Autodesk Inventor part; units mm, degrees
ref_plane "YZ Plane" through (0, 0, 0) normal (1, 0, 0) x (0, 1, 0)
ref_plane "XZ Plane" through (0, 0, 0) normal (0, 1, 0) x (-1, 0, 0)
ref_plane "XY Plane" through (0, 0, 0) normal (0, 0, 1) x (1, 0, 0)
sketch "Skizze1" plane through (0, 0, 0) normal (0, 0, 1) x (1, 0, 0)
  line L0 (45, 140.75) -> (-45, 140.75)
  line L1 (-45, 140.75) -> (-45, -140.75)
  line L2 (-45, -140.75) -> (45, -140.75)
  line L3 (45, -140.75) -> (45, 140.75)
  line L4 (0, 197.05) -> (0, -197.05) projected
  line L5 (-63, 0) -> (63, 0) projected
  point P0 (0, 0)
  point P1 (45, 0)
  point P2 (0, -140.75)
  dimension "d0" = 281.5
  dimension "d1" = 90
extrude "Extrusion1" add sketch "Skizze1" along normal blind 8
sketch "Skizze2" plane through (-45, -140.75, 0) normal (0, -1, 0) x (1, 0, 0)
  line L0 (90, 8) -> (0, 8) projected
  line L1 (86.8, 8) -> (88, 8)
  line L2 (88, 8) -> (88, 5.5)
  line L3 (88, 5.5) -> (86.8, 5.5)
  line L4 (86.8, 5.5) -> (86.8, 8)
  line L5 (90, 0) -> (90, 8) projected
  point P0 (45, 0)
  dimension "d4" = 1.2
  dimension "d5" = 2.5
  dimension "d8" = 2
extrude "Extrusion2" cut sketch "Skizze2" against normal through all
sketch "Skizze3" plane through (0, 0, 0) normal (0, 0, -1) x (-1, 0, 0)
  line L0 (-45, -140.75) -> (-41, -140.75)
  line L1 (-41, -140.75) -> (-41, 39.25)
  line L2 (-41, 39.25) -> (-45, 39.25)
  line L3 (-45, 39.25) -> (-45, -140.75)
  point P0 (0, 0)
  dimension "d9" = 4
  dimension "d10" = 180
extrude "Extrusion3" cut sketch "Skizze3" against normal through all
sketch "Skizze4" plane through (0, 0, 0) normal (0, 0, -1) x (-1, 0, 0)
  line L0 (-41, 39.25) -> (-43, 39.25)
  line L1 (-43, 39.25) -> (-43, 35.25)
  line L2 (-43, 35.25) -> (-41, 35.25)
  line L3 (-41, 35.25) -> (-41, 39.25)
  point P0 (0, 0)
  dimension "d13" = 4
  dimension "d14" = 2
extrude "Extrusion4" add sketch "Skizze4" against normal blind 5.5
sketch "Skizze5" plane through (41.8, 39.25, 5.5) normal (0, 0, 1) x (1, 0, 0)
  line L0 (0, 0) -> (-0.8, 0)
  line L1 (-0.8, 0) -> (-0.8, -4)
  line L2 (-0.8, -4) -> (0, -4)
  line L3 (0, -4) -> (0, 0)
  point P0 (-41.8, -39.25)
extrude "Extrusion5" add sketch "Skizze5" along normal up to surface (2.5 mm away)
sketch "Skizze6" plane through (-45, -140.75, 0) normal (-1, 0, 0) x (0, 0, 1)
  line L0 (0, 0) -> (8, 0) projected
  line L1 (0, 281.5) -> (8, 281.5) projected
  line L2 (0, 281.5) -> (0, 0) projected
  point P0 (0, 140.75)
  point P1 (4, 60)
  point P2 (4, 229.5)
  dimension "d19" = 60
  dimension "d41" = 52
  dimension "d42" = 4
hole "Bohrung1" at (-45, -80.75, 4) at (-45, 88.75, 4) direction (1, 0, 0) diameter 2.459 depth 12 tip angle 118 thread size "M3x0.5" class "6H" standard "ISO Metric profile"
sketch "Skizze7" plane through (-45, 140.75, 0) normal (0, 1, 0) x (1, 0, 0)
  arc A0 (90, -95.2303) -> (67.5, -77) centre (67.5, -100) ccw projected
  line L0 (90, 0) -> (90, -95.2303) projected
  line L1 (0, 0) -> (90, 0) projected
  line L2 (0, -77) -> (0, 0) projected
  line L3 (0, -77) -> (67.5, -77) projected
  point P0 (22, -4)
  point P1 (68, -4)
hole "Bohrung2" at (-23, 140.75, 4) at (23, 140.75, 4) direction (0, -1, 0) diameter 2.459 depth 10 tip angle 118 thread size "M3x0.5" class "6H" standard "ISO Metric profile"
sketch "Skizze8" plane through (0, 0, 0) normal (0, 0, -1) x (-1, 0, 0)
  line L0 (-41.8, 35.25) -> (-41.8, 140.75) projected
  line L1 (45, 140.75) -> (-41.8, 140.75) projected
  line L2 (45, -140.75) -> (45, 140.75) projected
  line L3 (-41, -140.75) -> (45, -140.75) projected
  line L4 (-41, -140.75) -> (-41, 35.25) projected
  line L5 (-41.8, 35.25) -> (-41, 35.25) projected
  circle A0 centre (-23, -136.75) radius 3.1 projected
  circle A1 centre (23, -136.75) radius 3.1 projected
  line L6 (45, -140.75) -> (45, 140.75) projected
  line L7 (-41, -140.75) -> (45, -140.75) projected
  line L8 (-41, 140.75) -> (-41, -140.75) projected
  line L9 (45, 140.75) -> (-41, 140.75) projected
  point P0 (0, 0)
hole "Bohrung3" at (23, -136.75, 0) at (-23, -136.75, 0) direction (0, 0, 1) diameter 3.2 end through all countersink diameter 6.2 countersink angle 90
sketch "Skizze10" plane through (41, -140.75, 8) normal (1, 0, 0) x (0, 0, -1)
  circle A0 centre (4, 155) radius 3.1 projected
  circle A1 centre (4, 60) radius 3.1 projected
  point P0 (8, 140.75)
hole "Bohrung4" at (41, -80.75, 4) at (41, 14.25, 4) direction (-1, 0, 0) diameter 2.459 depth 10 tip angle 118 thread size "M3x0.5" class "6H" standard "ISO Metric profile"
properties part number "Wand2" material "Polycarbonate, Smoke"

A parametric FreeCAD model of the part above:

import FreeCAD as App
import Part
import Sketcher
Q = App.Units.Quantity

doc = App.newDocument("Part")
body = doc.addObject("PartDesign::Body", "Body")

sketch1 = doc.addObject("Sketcher::SketchObject", "Sketch")
body.addObject(sketch1)
sketch1.AttachmentSupport = (doc.XY_Plane, [""])
sketch1.MapMode = "FlatFace"
sketch1.addGeometry(Part.LineSegment(App.Vector(45, 141, 0), App.Vector(-45, 141, 0)), False)
sketch1.addGeometry(Part.LineSegment(App.Vector(-45, 141, 0), App.Vector(-45, -141, 0)), False)
sketch1.addGeometry(Part.LineSegment(App.Vector(-45, -141, 0), App.Vector(45, -141, 0)), False)
sketch1.addGeometry(Part.LineSegment(App.Vector(45, -141, 0), App.Vector(45, 141, 0)), False)
sketch1.addConstraint(Sketcher.Constraint("Coincident", 0, 2, 1, 1))
sketch1.addConstraint(Sketcher.Constraint("Coincident", 1, 2, 2, 1))
sketch1.addConstraint(Sketcher.Constraint("Coincident", 2, 2, 3, 1))
sketch1.addConstraint(Sketcher.Constraint("Coincident", 3, 2, 0, 1))
sketch1.addConstraint(Sketcher.Constraint("Horizontal", 0))
sketch1.addConstraint(Sketcher.Constraint("Vertical", 1))
sketch1.addConstraint(Sketcher.Constraint("Horizontal", 2))
sketch1.addConstraint(Sketcher.Constraint("Vertical", 3))
sketch1.addConstraint(Sketcher.Constraint("Symmetric", 0, 2, 2, 2, -1, 1))
sketch1.addConstraint(Sketcher.Constraint("DistanceX", 0, 2, 0, 1, Q("90 mm")))
sketch1.addConstraint(Sketcher.Constraint("DistanceY", 1, 2, 1, 1, Q("281.5 mm")))
pad1 = doc.addObject("PartDesign::Pad", "Pad")
body.addObject(pad1)
pad1.Profile = sketch1
pad1.Length = 8

sketch2 = doc.addObject("Sketcher::SketchObject", "Sketch001")
body.addObject(sketch2)
sketch2.AttachmentSupport = (doc.XZ_Plane, [""])
sketch2.MapMode = "FlatFace"
sketch2.AttachmentOffset = App.Placement(App.Vector(0, 0, 140.75), App.Rotation())
sketch2.addGeometry(Part.LineSegment(App.Vector(43, 5.5, 0), App.Vector(43, 8, 0)), False)
sketch2.addGeometry(Part.LineSegment(App.Vector(43, 8, 0), App.Vector(41.8, 8, 0)), False)
sketch2.addGeometry(Part.LineSegment(App.Vector(41.8, 8, 0), App.Vector(41.8, 5.5, 0)), False)
sketch2.addGeometry(Part.LineSegment(App.Vector(41.8, 5.5, 0), App.Vector(43, 5.5, 0)), False)
sketch2.addConstraint(Sketcher.Constraint("Coincident", 0, 2, 1, 1))
sketch2.addConstraint(Sketcher.Constraint("Coincident", 1, 2, 2, 1))
sketch2.addConstraint(Sketcher.Constraint("Coincident", 2, 2, 3, 1))
sketch2.addConstraint(Sketcher.Constraint("Coincident", 3, 2, 0, 1))
sketch2.addConstraint(Sketcher.Constraint("Vertical", 0))
sketch2.addConstraint(Sketcher.Constraint("Horizontal", 1))
sketch2.addConstraint(Sketcher.Constraint("Vertical", 2))
sketch2.addConstraint(Sketcher.Constraint("Horizontal", 3))
sketch2.addConstraint(Sketcher.Constraint("DistanceX", 1, 2, 1, 1, Q("1.2 mm")))
sketch2.addConstraint(Sketcher.Constraint("DistanceY", 0, 1, 0, 2, Q("2.5 mm")))
sketch2.addConstraint(Sketcher.Constraint("DistanceX", -1, 1, 0, 2, Q("43 mm")))
sketch2.addConstraint(Sketcher.Constraint("DistanceY", -1, 1, 0, 2, Q("8 mm")))
pocket1 = doc.addObject("PartDesign::Pocket", "Pocket")
body.addObject(pocket1)
pocket1.Profile = sketch2
pocket1.Type = "ThroughAll"

sketch3 = doc.addObject("Sketcher::SketchObject", "Sketch002")
body.addObject(sketch3)
sketch3.AttachmentSupport = (doc.XY_Plane, [""])
sketch3.MapMode = "FlatFace"
sketch3.addGeometry(Part.LineSegment(App.Vector(45, 39.2, 0), App.Vector(45, -140.8, 0)), False)
sketch3.addGeometry(Part.LineSegment(App.Vector(45, -140.8, 0), App.Vector(41, -140.8, 0)), False)
sketch3.addGeometry(Part.LineSegment(App.Vector(41, -140.8, 0), App.Vector(41, 39.2, 0)), False)
sketch3.addGeometry(Part.LineSegment(App.Vector(41, 39.2, 0), App.Vector(45, 39.2, 0)), False)
sketch3.addConstraint(Sketcher.Constraint("Coincident", 0, 2, 1, 1))
sketch3.addConstraint(Sketcher.Constraint("Coincident", 1, 2, 2, 1))
sketch3.addConstraint(Sketcher.Constraint("Coincident", 2, 2, 3, 1))
sketch3.addConstraint(Sketcher.Constraint("Coincident", 3, 2, 0, 1))
sketch3.addConstraint(Sketcher.Constraint("Vertical", 0))
sketch3.addConstraint(Sketcher.Constraint("Horizontal", 1))
sketch3.addConstraint(Sketcher.Constraint("Vertical", 2))
sketch3.addConstraint(Sketcher.Constraint("Horizontal", 3))
sketch3.addConstraint(Sketcher.Constraint("DistanceX", 1, 2, 1, 1, Q("4 mm")))
sketch3.addConstraint(Sketcher.Constraint("DistanceY", 0, 2, 0, 1, Q("180 mm")))
sketch3.addConstraint(Sketcher.Constraint("DistanceX", -1, 1, 0, 2, Q("45 mm")))
sketch3.addConstraint(Sketcher.Constraint("DistanceY", 0, 2, -1, 1, Q("140.75 mm")))
pocket2 = doc.addObject("PartDesign::Pocket", "Pocket001")
body.addObject(pocket2)
pocket2.Profile = sketch3
pocket2.Type = "ThroughAll"
pocket2.Reversed = True

sketch4 = doc.addObject("Sketcher::SketchObject", "Sketch003")
body.addObject(sketch4)
sketch4.AttachmentSupport = (doc.XY_Plane, [""])
sketch4.MapMode = "FlatFace"
sketch4.addGeometry(Part.LineSegment(App.Vector(41, 35.2, 0), App.Vector(41, 39.2, 0)), False)
sketch4.addGeometry(Part.LineSegment(App.Vector(41, 39.2, 0), App.Vector(43, 39.2, 0)), False)
sketch4.addGeometry(Part.LineSegment(App.Vector(43, 39.2, 0), App.Vector(43, 35.2, 0)), False)
sketch4.addGeometry(Part.LineSegment(App.Vector(43, 35.2, 0), App.Vector(41, 35.2, 0)), False)
sketch4.addConstraint(Sketcher.Constraint("Coincident", 0, 2, 1, 1))
sketch4.addConstraint(Sketcher.Constraint("Coincident", 1, 2, 2, 1))
sketch4.addConstraint(Sketcher.Constraint("Coincident", 2, 2, 3, 1))
sketch4.addConstraint(Sketcher.Constraint("Coincident", 3, 2, 0, 1))
sketch4.addConstraint(Sketcher.Constraint("Vertical", 0))
sketch4.addConstraint(Sketcher.Constraint("Horizontal", 1))
sketch4.addConstraint(Sketcher.Constraint("Vertical", 2))
sketch4.addConstraint(Sketcher.Constraint("Horizontal", 3))
sketch4.addConstraint(Sketcher.Constraint("DistanceX", 1, 1, 1, 2, Q("2 mm")))
sketch4.addConstraint(Sketcher.Constraint("DistanceY", 0, 1, 0, 2, Q("4 mm")))
sketch4.addConstraint(Sketcher.Constraint("DistanceX", -1, 1, 0, 2, Q("41 mm")))
sketch4.addConstraint(Sketcher.Constraint("DistanceY", -1, 1, 0, 2, Q("39.25 mm")))
pad2 = doc.addObject("PartDesign::Pad", "Pad001")
body.addObject(pad2)
pad2.Profile = sketch4
pad2.Length = 5.5

sketch5 = doc.addObject("Sketcher::SketchObject", "Sketch004")
body.addObject(sketch5)
sketch5.AttachmentSupport = (doc.XY_Plane, [""])
sketch5.MapMode = "FlatFace"
sketch5.AttachmentOffset = App.Placement(App.Vector(0, 0, 5.5), App.Rotation())
sketch5.addGeometry(Part.LineSegment(App.Vector(41.8, 35.2, 0), App.Vector(41.8, 39.2, 0)), False)
sketch5.addGeometry(Part.LineSegment(App.Vector(41.8, 39.2, 0), App.Vector(41, 39.2, 0)), False)
sketch5.addGeometry(Part.LineSegment(App.Vector(41, 39.2, 0), App.Vector(41, 35.2, 0)), False)
sketch5.addGeometry(Part.LineSegment(App.Vector(41, 35.2, 0), App.Vector(41.8, 35.2, 0)), False)
sketch5.addConstraint(Sketcher.Constraint("Coincident", 0, 2, 1, 1))
sketch5.addConstraint(Sketcher.Constraint("Coincident", 1, 2, 2, 1))
sketch5.addConstraint(Sketcher.Constraint("Coincident", 2, 2, 3, 1))
sketch5.addConstraint(Sketcher.Constraint("Coincident", 3, 2, 0, 1))
sketch5.addConstraint(Sketcher.Constraint("Vertical", 0))
sketch5.addConstraint(Sketcher.Constraint("Horizontal", 1))
sketch5.addConstraint(Sketcher.Constraint("Vertical", 2))
sketch5.addConstraint(Sketcher.Constraint("Horizontal", 3))
sketch5.addConstraint(Sketcher.Constraint("DistanceY", 0, 1, 0, 2, Q("4 mm")))
sketch5.addConstraint(Sketcher.Constraint("DistanceX", 1, 2, 1, 1, Q("0.8 mm")))
sketch5.addConstraint(Sketcher.Constraint("DistanceX", -1, 1, 1, 2, Q("41 mm")))
sketch5.addConstraint(Sketcher.Constraint("DistanceY", -1, 1, 0, 2, Q("39.25 mm")))
pad3 = doc.addObject("PartDesign::Pad", "Pad002")
body.addObject(pad3)
pad3.Profile = sketch5
pad3.Length = 2.5

sketch6 = doc.addObject("Sketcher::SketchObject", "Sketch005")
body.addObject(sketch6)
sketch6.AttachmentSupport = (doc.YZ_Plane, [""])
sketch6.MapMode = "FlatFace"
sketch6.AttachmentOffset = App.Placement(App.Vector(0, 0, -45), App.Rotation())
sketch6.addGeometry(Part.Circle(App.Vector(-80.8, 4, 0), App.Vector(0, 0, 1), 1.2), False)
sketch6.addGeometry(Part.Circle(App.Vector(88.8, 4, 0), App.Vector(0, 0, 1), 1.2), False)
sketch6.addConstraint(Sketcher.Constraint("Equal", 0, 1))
sketch6.addConstraint(Sketcher.Constraint("Horizontal", 0, 3, 1, 3))
sketch6.addConstraint(Sketcher.Constraint("Diameter", 0, Q("2.459 mm")))
sketch6.addConstraint(Sketcher.Constraint("DistanceY", -1, 1, 0, 3, Q("4 mm")))
sketch6.addConstraint(Sketcher.Constraint("DistanceX", 0, 3, 1, 3, Q("169.5 mm")))
sketch6.addConstraint(Sketcher.Constraint("DistanceX", 0, 3, -1, 1, Q("80.75 mm")))
doc.recompute()
hole = doc.addObject("PartDesign::Hole", "Hole")
body.addObject(hole)
hole.Profile = sketch6
hole.ThreadType = "None"
hole.Diameter = 2.459
hole.DepthType = "Dimension"
hole.Depth = 12
hole.DrillPoint = "Angled"
hole.DrillPointAngle = 118
hole.Reversed = True

sketch7 = doc.addObject("Sketcher::SketchObject", "Sketch006")
body.addObject(sketch7)
sketch7.AttachmentSupport = (doc.XZ_Plane, [""])
sketch7.MapMode = "FlatFace"
sketch7.AttachmentOffset = App.Placement(App.Vector(0, 0, -140.75), App.Rotation())
sketch7.addGeometry(Part.Circle(App.Vector(-23, 4, 0), App.Vector(0, 0, 1), 1.2), False)
sketch7.addGeometry(Part.Circle(App.Vector(23, 4, 0), App.Vector(0, 0, 1), 1.2), False)
sketch7.addConstraint(Sketcher.Constraint("Equal", 0, 1))
sketch7.addConstraint(Sketcher.Constraint("Symmetric", 0, 3, 1, 3, -2))
sketch7.addConstraint(Sketcher.Constraint("Diameter", 0, Q("2.459 mm")))
sketch7.addConstraint(Sketcher.Constraint("DistanceX", 0, 3, -1, 1, Q("23 mm")))
sketch7.addConstraint(Sketcher.Constraint("DistanceY", -1, 1, 0, 3, Q("4 mm")))
doc.recompute()
hole2 = doc.addObject("PartDesign::Hole", "Hole001")
body.addObject(hole2)
hole2.Profile = sketch7
hole2.ThreadType = "None"
hole2.Diameter = 2.459
hole2.DepthType = "Dimension"
hole2.Depth = 10
hole2.DrillPoint = "Angled"
hole2.DrillPointAngle = 118
hole2.Reversed = True

sketch8 = doc.addObject("Sketcher::SketchObject", "Sketch007")
body.addObject(sketch8)
sketch8.AttachmentSupport = (doc.XY_Plane, [""])
sketch8.MapMode = "FlatFace"
sketch8.addGeometry(Part.Circle(App.Vector(23, -136.8, 0), App.Vector(0, 0, 1), 1.6), False)
sketch8.addGeometry(Part.Circle(App.Vector(-23, -136.8, 0), App.Vector(0, 0, 1), 1.6), False)
sketch8.addConstraint(Sketcher.Constraint("Equal", 0, 1))
sketch8.addConstraint(Sketcher.Constraint("Symmetric", 0, 3, 1, 3, -2))
sketch8.addConstraint(Sketcher.Constraint("Diameter", 0, Q("3.2 mm")))
sketch8.addConstraint(Sketcher.Constraint("DistanceX", -1, 1, 0, 3, Q("23 mm")))
sketch8.addConstraint(Sketcher.Constraint("DistanceY", 0, 3, -1, 1, Q("136.75 mm")))
doc.recompute()
hole3 = doc.addObject("PartDesign::Hole", "Hole002")
body.addObject(hole3)
hole3.Profile = sketch8
hole3.ThreadType = "None"
hole3.Diameter = 3.2
hole3.DepthType = "ThroughAll"
hole3.HoleCutType = "Countersink"
hole3.HoleCutDiameter = 6.2
hole3.HoleCutCountersinkAngle = 90
hole3.Reversed = True

sketch9 = doc.addObject("Sketcher::SketchObject", "Sketch008")
body.addObject(sketch9)
sketch9.AttachmentSupport = (doc.YZ_Plane, [""])
sketch9.MapMode = "FlatFace"
sketch9.AttachmentOffset = App.Placement(App.Vector(0, 0, 41), App.Rotation())
sketch9.addGeometry(Part.Circle(App.Vector(-80.8, 4, 0), App.Vector(0, 0, 1), 1.2), False)
sketch9.addGeometry(Part.Circle(App.Vector(14.2, 4, 0), App.Vector(0, 0, 1), 1.2), False)
sketch9.addConstraint(Sketcher.Constraint("Equal", 0, 1))
sketch9.addConstraint(Sketcher.Constraint("Horizontal", 0, 3, 1, 3))
sketch9.addConstraint(Sketcher.Constraint("Diameter", 0, Q("2.459 mm")))
sketch9.addConstraint(Sketcher.Constraint("DistanceY", -1, 1, 0, 3, Q("4 mm")))
sketch9.addConstraint(Sketcher.Constraint("DistanceX", 0, 3, 1, 3, Q("95 mm")))
sketch9.addConstraint(Sketcher.Constraint("DistanceX", 0, 3, -1, 1, Q("80.75 mm")))
doc.recompute()
hole4 = doc.addObject("PartDesign::Hole", "Hole003")
body.addObject(hole4)
hole4.Profile = sketch9
hole4.ThreadType = "None"
hole4.Diameter = 2.459
hole4.DepthType = "Dimension"
hole4.Depth = 10
hole4.DrillPoint = "Angled"
hole4.DrillPointAngle = 118

doc.recompute()
